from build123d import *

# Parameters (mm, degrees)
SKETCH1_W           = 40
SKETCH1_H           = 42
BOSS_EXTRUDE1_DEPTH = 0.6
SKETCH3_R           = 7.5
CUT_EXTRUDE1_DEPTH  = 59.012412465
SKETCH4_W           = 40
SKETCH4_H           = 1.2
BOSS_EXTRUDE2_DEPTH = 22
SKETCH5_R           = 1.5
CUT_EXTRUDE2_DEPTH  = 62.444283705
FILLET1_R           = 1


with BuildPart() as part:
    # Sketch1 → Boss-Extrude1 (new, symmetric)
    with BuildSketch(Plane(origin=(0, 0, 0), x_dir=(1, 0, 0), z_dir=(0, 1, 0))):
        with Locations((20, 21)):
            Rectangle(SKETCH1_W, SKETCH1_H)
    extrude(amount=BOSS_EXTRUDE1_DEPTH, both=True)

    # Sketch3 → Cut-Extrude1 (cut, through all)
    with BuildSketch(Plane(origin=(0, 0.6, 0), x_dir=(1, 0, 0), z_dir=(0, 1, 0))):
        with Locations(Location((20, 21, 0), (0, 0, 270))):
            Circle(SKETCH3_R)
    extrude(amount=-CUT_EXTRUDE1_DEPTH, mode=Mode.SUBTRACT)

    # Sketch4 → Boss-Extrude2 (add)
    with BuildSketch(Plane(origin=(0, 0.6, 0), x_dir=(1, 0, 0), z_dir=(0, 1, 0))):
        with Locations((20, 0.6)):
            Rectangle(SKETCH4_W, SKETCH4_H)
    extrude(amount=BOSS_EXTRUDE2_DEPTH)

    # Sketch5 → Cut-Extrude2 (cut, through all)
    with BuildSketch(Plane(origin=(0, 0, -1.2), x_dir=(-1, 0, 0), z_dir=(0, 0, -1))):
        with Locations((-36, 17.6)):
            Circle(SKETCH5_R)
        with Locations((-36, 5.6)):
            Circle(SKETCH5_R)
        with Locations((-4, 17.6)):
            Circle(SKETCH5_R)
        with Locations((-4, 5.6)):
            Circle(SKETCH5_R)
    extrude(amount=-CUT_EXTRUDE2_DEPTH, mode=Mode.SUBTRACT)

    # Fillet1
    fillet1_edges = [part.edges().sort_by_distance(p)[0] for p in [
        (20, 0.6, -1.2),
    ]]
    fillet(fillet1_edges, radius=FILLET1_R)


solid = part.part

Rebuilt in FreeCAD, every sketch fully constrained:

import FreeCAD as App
import Part
import Sketcher
Q = App.Units.Quantity


def edges_at(feature, points):
    """Names of the edges that pass closest to the given points."""
    edges = feature.Shape.Edges
    near = lambda p: min(range(len(edges)), key=lambda i: edges[i].distToShape(Part.Vertex(*p))[0])
    return sorted({f"Edge{near(p) + 1}" for p in points})


def add_polygon(sketch, points):
    """Adds a closed chain of lines whose ends are joined by coincident constraints."""
    first, n = sketch.GeometryCount, len(points)
    for a, b in zip(points, points[1:] + points[:1]):
        sketch.addGeometry(Part.LineSegment(App.Vector(*a, 0), App.Vector(*b, 0)), False)
    for i in range(n):
        sketch.addConstraint(Sketcher.Constraint("Coincident", first + i, 2, first + (i + 1) % n, 1))

doc = App.newDocument("Part")
body = doc.addObject("PartDesign::Body", "Body")

sketch1 = doc.addObject("Sketcher::SketchObject", "Sketch")
body.addObject(sketch1)
sketch1.AttachmentSupport = (doc.XZ_Plane, [""])
sketch1.MapMode = "FlatFace"
add_polygon(sketch1, [(0, -42), (0, 0), (40, 0), (40, -42)])
sketch1.addConstraint([
    Sketcher.Constraint("Vertical", 0),
    Sketcher.Constraint("Horizontal", 1),
    Sketcher.Constraint("Vertical", 2),
    Sketcher.Constraint("Horizontal", 3),
    Sketcher.Constraint("Coincident", 0, 2, -1, 1),
    Sketcher.Constraint("DistanceX", 1, 1, 1, 2, Q("40 mm")),
    Sketcher.Constraint("DistanceY", 0, 1, 0, 2, Q("42 mm")),
])
pad1 = doc.addObject("PartDesign::Pad", "Pad")
body.addObject(pad1)
pad1.Profile = sketch1
pad1.Length = 1.2
pad1.Midplane = True

sketch2 = doc.addObject("Sketcher::SketchObject", "Sketch001")
body.addObject(sketch2)
sketch2.AttachmentSupport = (doc.XZ_Plane, [""])
sketch2.MapMode = "FlatFace"
sketch2.AttachmentOffset = App.Placement(App.Vector(0, 0, -0.6), App.Rotation())
sketch2.addGeometry(Part.Circle(App.Vector(20, -21, 0), App.Vector(0, 0, 1), 8), False)
sketch2.addConstraint([
    Sketcher.Constraint("Diameter", 0, Q("15 mm")),
    Sketcher.Constraint("DistanceX", -1, 1, 0, 3, Q("20 mm")),
    Sketcher.Constraint("DistanceY", 0, 3, -1, 1, Q("21 mm")),
])
pocket1 = doc.addObject("PartDesign::Pocket", "Pocket")
body.addObject(pocket1)
pocket1.Profile = sketch2
pocket1.Type = "ThroughAll"
pocket1.Reversed = True

sketch3 = doc.addObject("Sketcher::SketchObject", "Sketch002")
body.addObject(sketch3)
sketch3.AttachmentSupport = (doc.XZ_Plane, [""])
sketch3.MapMode = "FlatFace"
sketch3.AttachmentOffset = App.Placement(App.Vector(0, 0, -0.6), App.Rotation())
add_polygon(sketch3, [(0, -1.2), (0, 0), (40, 0), (40, -1.2)])
sketch3.addConstraint([
    Sketcher.Constraint("Vertical", 0),
    Sketcher.Constraint("Horizontal", 1),
    Sketcher.Constraint("Vertical", 2),
    Sketcher.Constraint("Horizontal", 3),
    Sketcher.Constraint("Coincident", 0, 2, -1, 1),
    Sketcher.Constraint("DistanceX", 1, 1, 1, 2, Q("40 mm")),
    Sketcher.Constraint("DistanceY", 0, 1, 0, 2, Q("1.2 mm")),
])
pad2 = doc.addObject("PartDesign::Pad", "Pad001")
body.addObject(pad2)
pad2.Profile = sketch3
pad2.Length = 22
pad2.Reversed = True

sketch4 = doc.addObject("Sketcher::SketchObject", "Sketch003")
body.addObject(sketch4)
sketch4.AttachmentSupport = (doc.XY_Plane, [""])
sketch4.MapMode = "FlatFace"
sketch4.AttachmentOffset = App.Placement(App.Vector(0, 0, -1.2), App.Rotation())
sketch4.addGeometry([
    Part.Circle(App.Vector(36, 17.6, 0), App.Vector(0, 0, 1), 1.5),
    Part.Circle(App.Vector(36, 5.6, 0), App.Vector(0, 0, 1), 1.5),
    Part.Circle(App.Vector(4, 17.6, 0), App.Vector(0, 0, 1), 1.5),
    Part.Circle(App.Vector(4, 5.6, 0), App.Vector(0, 0, 1), 1.5),
], False)
sketch4.addConstraint([
    Sketcher.Constraint("Equal", 0, 1),
    Sketcher.Constraint("Equal", 1, 2),
    Sketcher.Constraint("Equal", 2, 3),
    Sketcher.Constraint("Horizontal", 0, 3, 2, 3),
    Sketcher.Constraint("Horizontal", 1, 3, 3, 3),
    Sketcher.Constraint("Vertical", 0, 3, 1, 3),
    Sketcher.Constraint("Vertical", 2, 3, 3, 3),
    Sketcher.Constraint("Diameter", 0, Q("3 mm")),
    Sketcher.Constraint("DistanceX", -1, 1, 0, 3, Q("36 mm")),
    Sketcher.Constraint("DistanceX", -1, 1, 2, 3, Q("4 mm")),
    Sketcher.Constraint("DistanceY", 1, 3, 0, 3, Q("12 mm")),
    Sketcher.Constraint("DistanceY", -1, 1, 0, 3, Q("17.6 mm")),
])
pocket2 = doc.addObject("PartDesign::Pocket", "Pocket001")
body.addObject(pocket2)
pocket2.Profile = sketch4
pocket2.Type = "ThroughAll"
pocket2.Reversed = True
doc.recompute()

fillet = doc.addObject("PartDesign::Fillet", "Fillet")
body.addObject(fillet)
fillet.Base = (pocket2, edges_at(pocket2, [(20, 0.6, -1.2)]))
fillet.Radius = 1

doc.recompute()
